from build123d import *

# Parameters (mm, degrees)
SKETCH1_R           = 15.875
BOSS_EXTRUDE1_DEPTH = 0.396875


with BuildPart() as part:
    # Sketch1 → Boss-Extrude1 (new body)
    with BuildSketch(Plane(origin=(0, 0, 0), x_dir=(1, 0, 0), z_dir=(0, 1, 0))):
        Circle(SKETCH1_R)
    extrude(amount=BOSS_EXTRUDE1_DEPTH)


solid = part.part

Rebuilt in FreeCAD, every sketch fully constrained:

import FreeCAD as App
import Part
import Sketcher
Q = App.Units.Quantity

doc = App.newDocument("Part")
params = doc.addObject("Spreadsheet::Sheet", "Params")
for row, (alias, value) in enumerate([
    ("sketch1_diameter", "1.25 in"),
    ("pad1_length", "0.015625 in"),
], start=1):
    params.set(f"A{row}", alias)
    params.set(f"B{row}", "=" + value)
    params.setAlias(f"B{row}", alias)

body = doc.addObject("PartDesign::Body", "Body")

sketch1 = body.newObject("Sketcher::SketchObject", "Sketch")
sketch1.AttachmentSupport = (doc.getObject("XZ_Plane"), [""])
sketch1.MapMode = "FlatFace"
sketch1.addGeometry(Part.Circle(App.Vector(0, 0, 0), App.Vector(0, 0, 1), 15.875), False)
sketch1.addConstraint([
    Sketcher.Constraint("Coincident", 0, 3, -1, 1),
    Sketcher.Constraint("Diameter", 0, Q("1.25 in")),
])
sketch1.setExpression("Constraints[1]", "Params.sketch1_diameter")
pad1 = body.newObject("PartDesign::Pad", "Pad")
pad1.Profile = sketch1
pad1.setExpression("Length", "Params.pad1_length")
pad1.Reversed = True

doc.recompute()
